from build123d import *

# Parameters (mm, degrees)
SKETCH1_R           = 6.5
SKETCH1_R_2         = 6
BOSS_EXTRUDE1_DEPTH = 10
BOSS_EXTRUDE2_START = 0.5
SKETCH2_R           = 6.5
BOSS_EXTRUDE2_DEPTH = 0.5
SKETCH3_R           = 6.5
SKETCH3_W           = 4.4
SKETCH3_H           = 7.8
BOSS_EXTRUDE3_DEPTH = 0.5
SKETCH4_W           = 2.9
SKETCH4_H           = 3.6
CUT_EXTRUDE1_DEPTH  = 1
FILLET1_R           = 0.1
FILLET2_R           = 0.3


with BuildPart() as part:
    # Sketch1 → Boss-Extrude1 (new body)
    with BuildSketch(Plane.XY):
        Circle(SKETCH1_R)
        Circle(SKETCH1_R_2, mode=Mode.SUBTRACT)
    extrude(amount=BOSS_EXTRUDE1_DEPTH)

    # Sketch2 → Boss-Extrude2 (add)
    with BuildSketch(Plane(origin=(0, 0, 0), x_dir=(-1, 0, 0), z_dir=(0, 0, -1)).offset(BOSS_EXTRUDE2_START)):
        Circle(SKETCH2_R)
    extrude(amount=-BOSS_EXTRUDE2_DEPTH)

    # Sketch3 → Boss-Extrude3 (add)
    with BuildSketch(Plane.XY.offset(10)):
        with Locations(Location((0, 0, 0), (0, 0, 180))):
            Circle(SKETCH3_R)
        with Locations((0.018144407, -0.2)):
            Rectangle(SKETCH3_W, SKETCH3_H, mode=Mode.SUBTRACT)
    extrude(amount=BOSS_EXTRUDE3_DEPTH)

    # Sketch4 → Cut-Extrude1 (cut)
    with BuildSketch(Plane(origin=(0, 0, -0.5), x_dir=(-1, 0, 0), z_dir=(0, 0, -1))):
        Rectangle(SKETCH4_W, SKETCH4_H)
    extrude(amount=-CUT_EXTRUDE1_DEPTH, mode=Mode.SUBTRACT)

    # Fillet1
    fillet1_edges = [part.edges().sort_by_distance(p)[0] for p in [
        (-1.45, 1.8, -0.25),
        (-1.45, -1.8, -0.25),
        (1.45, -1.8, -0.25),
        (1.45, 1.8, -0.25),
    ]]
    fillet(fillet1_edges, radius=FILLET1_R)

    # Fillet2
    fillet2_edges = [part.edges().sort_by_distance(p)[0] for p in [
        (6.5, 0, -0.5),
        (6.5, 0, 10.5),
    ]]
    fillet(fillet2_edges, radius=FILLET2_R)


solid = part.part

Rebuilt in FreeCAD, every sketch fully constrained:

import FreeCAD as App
import Part
import Sketcher

V = App.Vector
Q = App.Units.Quantity


def edges_at(feature, points):
    """Names of the edges that pass closest to the given points."""
    edges = feature.Shape.Edges
    near = lambda p: min(range(len(edges)), key=lambda i: edges[i].distToShape(Part.Vertex(*p))[0])
    return sorted({f"Edge{near(p) + 1}" for p in points})


def add_polygon(sketch, points):
    """Adds a closed chain of lines whose ends are joined by coincident constraints."""
    first, n = sketch.GeometryCount, len(points)
    for a, b in zip(points, points[1:] + points[:1]):
        sketch.addGeometry(Part.LineSegment(App.Vector(*a, 0), App.Vector(*b, 0)), False)
    for i in range(n):
        sketch.addConstraint(Sketcher.Constraint("Coincident", first + i, 2, first + (i + 1) % n, 1))

doc = App.newDocument("Part")
body = doc.addObject("PartDesign::Body", "Body")

sketch1 = body.newObject("Sketcher::SketchObject", "Sketch")
sketch1.AttachmentSupport = (doc.getObject("XY_Plane"), [""])
sketch1.MapMode = "FlatFace"
sketch1.addGeometry(Part.Circle(V(0, 0, 0), V(0, 0, 1), 6.5), False)
sketch1.addGeometry(Part.Circle(V(0, 0, 0), V(0, 0, 1), 6), False)
sketch1.addConstraint(Sketcher.Constraint("Coincident", 0, 3, -1, 1))
sketch1.addConstraint(Sketcher.Constraint("Coincident", 1, 3, -1, 1))
sketch1.addConstraint(Sketcher.Constraint("Diameter", 0, Q("13 mm")))
sketch1.addConstraint(Sketcher.Constraint("Diameter", 1, Q("12 mm")))
pad1 = body.newObject("PartDesign::Pad", "Pad")
pad1.Profile = sketch1
pad1.Length = 10

sketch2 = body.newObject("Sketcher::SketchObject", "Sketch001")
sketch2.AttachmentSupport = (doc.getObject("XY_Plane"), [""])
sketch2.MapMode = "FlatFace"
sketch2.AttachmentOffset = App.Placement(V(0, 0, -0.5), App.Rotation())
sketch2.addGeometry(Part.Circle(V(0, 0, 0), V(0, 0, 1), 6.5), False)
sketch2.addConstraint(Sketcher.Constraint("Coincident", 0, 3, -1, 1))
sketch2.addConstraint(Sketcher.Constraint("Diameter", 0, Q("13 mm")))
pad2 = body.newObject("PartDesign::Pad", "Pad001")
pad2.Profile = sketch2
pad2.Length = 0.5

sketch3 = body.newObject("Sketcher::SketchObject", "Sketch002")
sketch3.AttachmentSupport = (doc.getObject("XY_Plane"), [""])
sketch3.MapMode = "FlatFace"
sketch3.AttachmentOffset = App.Placement(V(0, 0, 10), App.Rotation())
sketch3.addGeometry(Part.Circle(V(0, 0, 0), V(0, 0, 1), 6.5), False)
add_polygon(sketch3, [(2.218144, -4.1), (-2.181856, -4.1), (-2.181856, 3.7), (2.218144, 3.7)])
sketch3.addConstraint(Sketcher.Constraint("Horizontal", 1))
sketch3.addConstraint(Sketcher.Constraint("Vertical", 2))
sketch3.addConstraint(Sketcher.Constraint("Horizontal", 3))
sketch3.addConstraint(Sketcher.Constraint("Vertical", 4))
sketch3.addConstraint(Sketcher.Constraint("Coincident", 0, 3, -1, 1))
sketch3.addConstraint(Sketcher.Constraint("Diameter", 0, Q("13 mm")))
sketch3.addConstraint(Sketcher.Constraint("DistanceX", 1, 2, 1, 1, Q("4.4 mm")))
sketch3.addConstraint(Sketcher.Constraint("DistanceY", 2, 1, 2, 2, Q("7.8 mm")))
sketch3.addConstraint(Sketcher.Constraint("DistanceY", 1, 2, -1, 1, Q("4.1 mm")))
sketch3.addConstraint(Sketcher.Constraint("DistanceX", 1, 2, -1, 1, Q("2.181856 mm")))
pad3 = body.newObject("PartDesign::Pad", "Pad002")
pad3.Profile = sketch3
pad3.Length = 0.5

sketch4 = body.newObject("Sketcher::SketchObject", "Sketch003")
sketch4.AttachmentSupport = (doc.getObject("XY_Plane"), [""])
sketch4.MapMode = "FlatFace"
sketch4.AttachmentOffset = App.Placement(V(0, 0, -0.5), App.Rotation())
add_polygon(sketch4, [(1.45, 1.8), (1.45, -1.8), (-1.45, -1.8), (-1.45, 1.8)])
sketch4.addConstraint(Sketcher.Constraint("Vertical", 0))
sketch4.addConstraint(Sketcher.Constraint("Horizontal", 1))
sketch4.addConstraint(Sketcher.Constraint("Vertical", 2))
sketch4.addConstraint(Sketcher.Constraint("Horizontal", 3))
sketch4.addConstraint(Sketcher.Constraint("Symmetric", 0, 2, 2, 2, -1, 1))
sketch4.addConstraint(Sketcher.Constraint("DistanceX", 1, 2, 1, 1, Q("2.9 mm")))
sketch4.addConstraint(Sketcher.Constraint("DistanceY", 0, 2, 0, 1, Q("3.6 mm")))
pocket1 = body.newObject("PartDesign::Pocket", "Pocket")
pocket1.Profile = sketch4
pocket1.Length = 1
pocket1.Reversed = True
doc.recompute()

fillet = body.newObject("PartDesign::Fillet", "Fillet")
fillet.Base = (pocket1, edges_at(pocket1, [
    (-1.45, 1.8, -0.25),
    (-1.45, -1.8, -0.25),
    (1.45, -1.8, -0.25),
    (1.45, 1.8, -0.25),
]))
fillet.Radius = 0.1
doc.recompute()

fillet2 = body.newObject("PartDesign::Fillet", "Fillet001")
fillet2.Base = (fillet, edges_at(fillet, [(6.5, 0, -0.5), (6.5, 0, 10.5)]))
fillet2.Radius = 0.3

doc.recompute()
